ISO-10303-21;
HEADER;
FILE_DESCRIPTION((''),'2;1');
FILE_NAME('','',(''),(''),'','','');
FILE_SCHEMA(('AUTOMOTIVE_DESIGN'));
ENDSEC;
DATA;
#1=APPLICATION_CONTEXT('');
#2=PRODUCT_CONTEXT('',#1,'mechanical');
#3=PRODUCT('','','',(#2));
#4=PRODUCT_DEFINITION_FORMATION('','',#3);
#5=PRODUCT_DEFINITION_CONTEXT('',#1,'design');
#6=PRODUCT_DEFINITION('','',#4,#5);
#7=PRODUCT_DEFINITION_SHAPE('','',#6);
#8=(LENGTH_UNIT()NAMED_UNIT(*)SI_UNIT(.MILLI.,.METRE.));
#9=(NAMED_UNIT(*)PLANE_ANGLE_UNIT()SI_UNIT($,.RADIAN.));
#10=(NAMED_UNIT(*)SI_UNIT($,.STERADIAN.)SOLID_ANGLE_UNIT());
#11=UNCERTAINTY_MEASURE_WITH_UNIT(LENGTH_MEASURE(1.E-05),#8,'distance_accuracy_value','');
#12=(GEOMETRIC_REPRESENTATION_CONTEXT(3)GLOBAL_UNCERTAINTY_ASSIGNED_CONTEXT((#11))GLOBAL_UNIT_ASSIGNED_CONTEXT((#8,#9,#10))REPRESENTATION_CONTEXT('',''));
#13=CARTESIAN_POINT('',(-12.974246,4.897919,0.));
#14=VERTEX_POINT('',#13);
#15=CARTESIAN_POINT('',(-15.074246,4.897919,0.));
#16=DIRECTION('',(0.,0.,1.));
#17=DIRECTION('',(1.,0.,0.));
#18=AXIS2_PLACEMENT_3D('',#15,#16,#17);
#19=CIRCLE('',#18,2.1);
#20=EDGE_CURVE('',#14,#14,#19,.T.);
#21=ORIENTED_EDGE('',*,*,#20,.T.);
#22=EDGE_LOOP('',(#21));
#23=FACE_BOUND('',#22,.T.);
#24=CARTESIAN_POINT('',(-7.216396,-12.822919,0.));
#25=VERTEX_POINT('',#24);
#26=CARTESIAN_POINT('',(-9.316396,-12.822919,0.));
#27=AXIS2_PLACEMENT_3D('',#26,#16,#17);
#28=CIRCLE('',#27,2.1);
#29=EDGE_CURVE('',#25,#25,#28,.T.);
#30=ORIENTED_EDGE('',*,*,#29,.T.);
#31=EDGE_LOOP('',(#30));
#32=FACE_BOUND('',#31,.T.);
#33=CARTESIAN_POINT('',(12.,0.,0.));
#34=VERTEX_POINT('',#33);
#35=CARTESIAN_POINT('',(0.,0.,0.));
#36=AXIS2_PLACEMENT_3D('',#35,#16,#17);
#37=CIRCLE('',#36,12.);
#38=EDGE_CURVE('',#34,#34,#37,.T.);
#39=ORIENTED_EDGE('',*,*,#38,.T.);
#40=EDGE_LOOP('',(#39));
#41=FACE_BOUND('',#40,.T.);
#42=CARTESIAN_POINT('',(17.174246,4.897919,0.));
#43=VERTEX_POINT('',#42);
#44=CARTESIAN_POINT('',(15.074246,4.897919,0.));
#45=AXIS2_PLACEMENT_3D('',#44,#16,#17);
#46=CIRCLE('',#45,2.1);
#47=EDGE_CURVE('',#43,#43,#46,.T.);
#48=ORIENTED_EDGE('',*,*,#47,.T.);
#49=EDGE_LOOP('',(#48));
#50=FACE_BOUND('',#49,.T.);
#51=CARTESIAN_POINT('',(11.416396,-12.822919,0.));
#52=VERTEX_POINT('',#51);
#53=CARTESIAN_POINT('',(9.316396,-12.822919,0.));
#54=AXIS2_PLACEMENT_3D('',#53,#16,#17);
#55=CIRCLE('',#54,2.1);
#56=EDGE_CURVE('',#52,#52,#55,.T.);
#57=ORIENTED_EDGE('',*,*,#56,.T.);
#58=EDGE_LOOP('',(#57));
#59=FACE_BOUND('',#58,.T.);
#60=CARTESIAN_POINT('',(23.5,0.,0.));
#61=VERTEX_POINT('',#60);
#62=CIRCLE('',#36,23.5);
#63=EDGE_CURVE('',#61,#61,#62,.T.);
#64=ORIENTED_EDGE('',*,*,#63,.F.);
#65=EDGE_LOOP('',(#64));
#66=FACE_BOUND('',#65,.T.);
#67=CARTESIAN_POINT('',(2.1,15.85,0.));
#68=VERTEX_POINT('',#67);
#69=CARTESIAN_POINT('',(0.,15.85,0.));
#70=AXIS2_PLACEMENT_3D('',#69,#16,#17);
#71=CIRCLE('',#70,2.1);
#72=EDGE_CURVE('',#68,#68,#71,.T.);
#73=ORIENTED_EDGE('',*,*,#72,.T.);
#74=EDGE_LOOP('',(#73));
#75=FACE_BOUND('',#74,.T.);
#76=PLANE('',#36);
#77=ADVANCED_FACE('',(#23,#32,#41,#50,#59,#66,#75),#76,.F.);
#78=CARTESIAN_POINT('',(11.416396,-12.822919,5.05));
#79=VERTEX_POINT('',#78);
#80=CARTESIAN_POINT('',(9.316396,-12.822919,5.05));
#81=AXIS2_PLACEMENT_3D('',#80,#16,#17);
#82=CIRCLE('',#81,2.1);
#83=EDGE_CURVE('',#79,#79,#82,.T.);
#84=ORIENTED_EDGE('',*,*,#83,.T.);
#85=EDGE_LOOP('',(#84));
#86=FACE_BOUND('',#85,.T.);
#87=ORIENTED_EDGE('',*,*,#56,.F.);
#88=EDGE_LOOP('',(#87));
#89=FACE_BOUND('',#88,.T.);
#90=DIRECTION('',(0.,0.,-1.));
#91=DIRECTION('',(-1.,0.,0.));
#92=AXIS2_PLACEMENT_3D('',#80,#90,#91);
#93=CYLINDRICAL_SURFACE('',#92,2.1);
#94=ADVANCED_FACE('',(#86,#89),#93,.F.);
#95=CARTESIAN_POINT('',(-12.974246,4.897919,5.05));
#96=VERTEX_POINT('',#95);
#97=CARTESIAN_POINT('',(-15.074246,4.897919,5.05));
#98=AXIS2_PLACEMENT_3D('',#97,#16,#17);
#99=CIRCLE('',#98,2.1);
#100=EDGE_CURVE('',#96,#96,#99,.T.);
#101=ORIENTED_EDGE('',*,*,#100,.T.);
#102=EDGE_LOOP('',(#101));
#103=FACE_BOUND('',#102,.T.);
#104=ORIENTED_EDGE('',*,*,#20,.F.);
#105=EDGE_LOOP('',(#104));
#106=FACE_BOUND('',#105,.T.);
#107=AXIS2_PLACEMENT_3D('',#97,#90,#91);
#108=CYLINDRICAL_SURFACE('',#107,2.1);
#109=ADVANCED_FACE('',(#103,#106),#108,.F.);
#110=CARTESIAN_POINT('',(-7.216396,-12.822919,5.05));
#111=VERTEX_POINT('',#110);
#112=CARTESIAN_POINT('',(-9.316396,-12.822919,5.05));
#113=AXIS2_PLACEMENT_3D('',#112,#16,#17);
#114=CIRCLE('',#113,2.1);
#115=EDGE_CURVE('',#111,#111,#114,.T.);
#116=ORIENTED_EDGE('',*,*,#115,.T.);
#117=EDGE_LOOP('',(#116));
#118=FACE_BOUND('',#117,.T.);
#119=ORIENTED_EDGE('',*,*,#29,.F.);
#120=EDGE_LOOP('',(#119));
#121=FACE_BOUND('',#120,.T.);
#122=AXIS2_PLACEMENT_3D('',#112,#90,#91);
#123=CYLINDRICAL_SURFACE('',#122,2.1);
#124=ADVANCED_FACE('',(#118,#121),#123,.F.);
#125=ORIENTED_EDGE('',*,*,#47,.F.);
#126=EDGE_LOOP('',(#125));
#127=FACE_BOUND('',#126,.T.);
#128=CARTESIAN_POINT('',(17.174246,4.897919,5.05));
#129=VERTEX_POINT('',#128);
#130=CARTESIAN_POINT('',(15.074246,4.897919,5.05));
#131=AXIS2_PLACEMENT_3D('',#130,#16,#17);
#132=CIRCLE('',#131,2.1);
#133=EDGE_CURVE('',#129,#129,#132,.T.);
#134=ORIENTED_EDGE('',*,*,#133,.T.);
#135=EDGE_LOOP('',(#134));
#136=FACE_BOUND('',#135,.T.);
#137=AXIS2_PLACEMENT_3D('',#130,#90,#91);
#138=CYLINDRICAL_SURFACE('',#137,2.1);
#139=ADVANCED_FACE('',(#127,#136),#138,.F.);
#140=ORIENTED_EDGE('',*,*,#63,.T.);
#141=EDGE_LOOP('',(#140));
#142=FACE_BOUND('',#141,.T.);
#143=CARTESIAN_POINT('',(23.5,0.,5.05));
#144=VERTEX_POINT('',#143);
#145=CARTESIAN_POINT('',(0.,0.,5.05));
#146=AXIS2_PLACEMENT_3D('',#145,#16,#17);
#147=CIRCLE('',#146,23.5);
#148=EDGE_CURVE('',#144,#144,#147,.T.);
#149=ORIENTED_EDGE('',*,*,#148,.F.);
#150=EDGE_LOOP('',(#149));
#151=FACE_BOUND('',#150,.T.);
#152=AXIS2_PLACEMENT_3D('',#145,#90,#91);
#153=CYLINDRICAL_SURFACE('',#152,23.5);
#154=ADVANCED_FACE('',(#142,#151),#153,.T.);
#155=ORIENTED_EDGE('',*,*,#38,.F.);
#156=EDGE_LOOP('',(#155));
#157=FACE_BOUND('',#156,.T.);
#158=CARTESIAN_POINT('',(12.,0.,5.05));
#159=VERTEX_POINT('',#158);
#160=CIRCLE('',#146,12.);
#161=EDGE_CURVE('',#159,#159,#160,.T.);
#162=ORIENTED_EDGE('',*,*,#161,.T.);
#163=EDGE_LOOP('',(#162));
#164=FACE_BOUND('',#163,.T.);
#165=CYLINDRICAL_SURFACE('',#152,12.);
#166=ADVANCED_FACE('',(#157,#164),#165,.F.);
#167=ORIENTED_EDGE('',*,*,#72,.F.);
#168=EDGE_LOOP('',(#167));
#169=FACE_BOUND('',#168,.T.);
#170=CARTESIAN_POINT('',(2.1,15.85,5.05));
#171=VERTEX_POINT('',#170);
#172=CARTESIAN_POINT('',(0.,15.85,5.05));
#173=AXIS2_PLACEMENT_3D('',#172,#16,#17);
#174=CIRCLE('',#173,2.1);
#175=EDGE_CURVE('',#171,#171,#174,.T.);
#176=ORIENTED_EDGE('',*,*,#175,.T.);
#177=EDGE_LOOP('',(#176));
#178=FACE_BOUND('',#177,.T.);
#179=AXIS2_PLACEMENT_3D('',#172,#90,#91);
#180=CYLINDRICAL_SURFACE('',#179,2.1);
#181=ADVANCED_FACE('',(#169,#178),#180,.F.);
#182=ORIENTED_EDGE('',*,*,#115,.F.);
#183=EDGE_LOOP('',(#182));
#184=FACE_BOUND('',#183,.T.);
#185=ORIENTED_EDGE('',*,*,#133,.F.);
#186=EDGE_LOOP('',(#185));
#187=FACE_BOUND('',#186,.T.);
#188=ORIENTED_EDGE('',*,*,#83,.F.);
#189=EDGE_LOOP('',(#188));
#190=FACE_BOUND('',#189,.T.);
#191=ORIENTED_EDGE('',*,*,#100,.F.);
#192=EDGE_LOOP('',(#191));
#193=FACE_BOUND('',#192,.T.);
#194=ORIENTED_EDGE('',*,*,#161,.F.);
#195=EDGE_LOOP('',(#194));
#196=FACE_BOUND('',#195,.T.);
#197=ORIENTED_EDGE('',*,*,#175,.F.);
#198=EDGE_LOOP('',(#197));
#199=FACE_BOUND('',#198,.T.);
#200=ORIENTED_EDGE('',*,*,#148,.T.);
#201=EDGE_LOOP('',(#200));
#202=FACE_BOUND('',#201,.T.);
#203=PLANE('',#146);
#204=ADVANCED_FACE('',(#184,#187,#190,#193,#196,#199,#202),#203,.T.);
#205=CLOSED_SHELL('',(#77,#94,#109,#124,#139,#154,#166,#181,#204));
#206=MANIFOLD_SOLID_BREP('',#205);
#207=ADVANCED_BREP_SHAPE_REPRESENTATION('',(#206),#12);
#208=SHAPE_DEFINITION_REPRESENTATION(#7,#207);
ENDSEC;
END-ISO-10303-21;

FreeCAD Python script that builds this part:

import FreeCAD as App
import Part
import Sketcher
from FreeCAD import Vector
Q = App.Units.Quantity

doc = App.newDocument("Part")
body = doc.addObject("PartDesign::Body", "Body")

# Sketch on XY plane
sketch1 = body.newObject("Sketcher::SketchObject", "Sketch")
sketch1.AttachmentSupport = (doc.getObject("XY_Plane"), [""])
sketch1.MapMode = "FlatFace"
sketch1.addGeometry(Part.Circle(Vector(0, 0, 0), Vector(0, 0, 1), 23.5), False)
sketch1.addGeometry(Part.Circle(Vector(-9.316396, -12.822919, 0), Vector(0, 0, 1), 2.1), False)
sketch1.addGeometry(Part.Circle(Vector(0, 0, 0), Vector(0, 0, 1), 12), False)
sketch1.addGeometry(Part.Circle(Vector(9.316396, -12.822919, 0), Vector(0, 0, 1), 2.1), False)
sketch1.addGeometry(Part.Circle(Vector(-15.074246, 4.897919, 0), Vector(0, 0, 1), 2.1), False)
sketch1.addGeometry(Part.Circle(Vector(0, 15.85, 0), Vector(0, 0, 1), 2.1), False)
sketch1.addGeometry(Part.Circle(Vector(15.074246, 4.897919, 0), Vector(0, 0, 1), 2.1), False)
sketch1.addConstraint(Sketcher.Constraint("Coincident", 0, 3, -1, 1))
sketch1.addConstraint(Sketcher.Constraint("Coincident", 2, 3, -1, 1))
sketch1.addConstraint(Sketcher.Constraint("Equal", 1, 3))
sketch1.addConstraint(Sketcher.Constraint("Equal", 3, 4))
sketch1.addConstraint(Sketcher.Constraint("Equal", 4, 5))
sketch1.addConstraint(Sketcher.Constraint("Equal", 5, 6))
sketch1.addConstraint(Sketcher.Constraint("Symmetric", 1, 3, 3, 3, -2))
sketch1.addConstraint(Sketcher.Constraint("Symmetric", 4, 3, 6, 3, -2))
sketch1.addConstraint(Sketcher.Constraint("PointOnObject", 5, 3, -2))
sketch1.addConstraint(Sketcher.Constraint("Diameter", 0, Q("47 mm")))
sketch1.addConstraint(Sketcher.Constraint("Diameter", 2, Q("24 mm")))
sketch1.addConstraint(Sketcher.Constraint("Diameter", 1, Q("4.2 mm")))
sketch1.addConstraint(Sketcher.Constraint("DistanceY", -1, 1, 5, 3, Q("15.85 mm")))
sketch1.addConstraint(Sketcher.Constraint("DistanceY", 1, 3, -1, 1, Q("12.822919 mm")))
sketch1.addConstraint(Sketcher.Constraint("DistanceY", -1, 1, 4, 3, Q("4.897919 mm")))
sketch1.addConstraint(Sketcher.Constraint("DistanceX", 4, 3, 1, 3, Q("5.75785 mm")))
sketch1.addConstraint(Sketcher.Constraint("DistanceX", 4, 3, 6, 3, Q("30.148492 mm")))
pad1 = body.newObject("PartDesign::Pad", "Pad")
pad1.Profile = sketch1
pad1.Length = 5.05

doc.recompute()
